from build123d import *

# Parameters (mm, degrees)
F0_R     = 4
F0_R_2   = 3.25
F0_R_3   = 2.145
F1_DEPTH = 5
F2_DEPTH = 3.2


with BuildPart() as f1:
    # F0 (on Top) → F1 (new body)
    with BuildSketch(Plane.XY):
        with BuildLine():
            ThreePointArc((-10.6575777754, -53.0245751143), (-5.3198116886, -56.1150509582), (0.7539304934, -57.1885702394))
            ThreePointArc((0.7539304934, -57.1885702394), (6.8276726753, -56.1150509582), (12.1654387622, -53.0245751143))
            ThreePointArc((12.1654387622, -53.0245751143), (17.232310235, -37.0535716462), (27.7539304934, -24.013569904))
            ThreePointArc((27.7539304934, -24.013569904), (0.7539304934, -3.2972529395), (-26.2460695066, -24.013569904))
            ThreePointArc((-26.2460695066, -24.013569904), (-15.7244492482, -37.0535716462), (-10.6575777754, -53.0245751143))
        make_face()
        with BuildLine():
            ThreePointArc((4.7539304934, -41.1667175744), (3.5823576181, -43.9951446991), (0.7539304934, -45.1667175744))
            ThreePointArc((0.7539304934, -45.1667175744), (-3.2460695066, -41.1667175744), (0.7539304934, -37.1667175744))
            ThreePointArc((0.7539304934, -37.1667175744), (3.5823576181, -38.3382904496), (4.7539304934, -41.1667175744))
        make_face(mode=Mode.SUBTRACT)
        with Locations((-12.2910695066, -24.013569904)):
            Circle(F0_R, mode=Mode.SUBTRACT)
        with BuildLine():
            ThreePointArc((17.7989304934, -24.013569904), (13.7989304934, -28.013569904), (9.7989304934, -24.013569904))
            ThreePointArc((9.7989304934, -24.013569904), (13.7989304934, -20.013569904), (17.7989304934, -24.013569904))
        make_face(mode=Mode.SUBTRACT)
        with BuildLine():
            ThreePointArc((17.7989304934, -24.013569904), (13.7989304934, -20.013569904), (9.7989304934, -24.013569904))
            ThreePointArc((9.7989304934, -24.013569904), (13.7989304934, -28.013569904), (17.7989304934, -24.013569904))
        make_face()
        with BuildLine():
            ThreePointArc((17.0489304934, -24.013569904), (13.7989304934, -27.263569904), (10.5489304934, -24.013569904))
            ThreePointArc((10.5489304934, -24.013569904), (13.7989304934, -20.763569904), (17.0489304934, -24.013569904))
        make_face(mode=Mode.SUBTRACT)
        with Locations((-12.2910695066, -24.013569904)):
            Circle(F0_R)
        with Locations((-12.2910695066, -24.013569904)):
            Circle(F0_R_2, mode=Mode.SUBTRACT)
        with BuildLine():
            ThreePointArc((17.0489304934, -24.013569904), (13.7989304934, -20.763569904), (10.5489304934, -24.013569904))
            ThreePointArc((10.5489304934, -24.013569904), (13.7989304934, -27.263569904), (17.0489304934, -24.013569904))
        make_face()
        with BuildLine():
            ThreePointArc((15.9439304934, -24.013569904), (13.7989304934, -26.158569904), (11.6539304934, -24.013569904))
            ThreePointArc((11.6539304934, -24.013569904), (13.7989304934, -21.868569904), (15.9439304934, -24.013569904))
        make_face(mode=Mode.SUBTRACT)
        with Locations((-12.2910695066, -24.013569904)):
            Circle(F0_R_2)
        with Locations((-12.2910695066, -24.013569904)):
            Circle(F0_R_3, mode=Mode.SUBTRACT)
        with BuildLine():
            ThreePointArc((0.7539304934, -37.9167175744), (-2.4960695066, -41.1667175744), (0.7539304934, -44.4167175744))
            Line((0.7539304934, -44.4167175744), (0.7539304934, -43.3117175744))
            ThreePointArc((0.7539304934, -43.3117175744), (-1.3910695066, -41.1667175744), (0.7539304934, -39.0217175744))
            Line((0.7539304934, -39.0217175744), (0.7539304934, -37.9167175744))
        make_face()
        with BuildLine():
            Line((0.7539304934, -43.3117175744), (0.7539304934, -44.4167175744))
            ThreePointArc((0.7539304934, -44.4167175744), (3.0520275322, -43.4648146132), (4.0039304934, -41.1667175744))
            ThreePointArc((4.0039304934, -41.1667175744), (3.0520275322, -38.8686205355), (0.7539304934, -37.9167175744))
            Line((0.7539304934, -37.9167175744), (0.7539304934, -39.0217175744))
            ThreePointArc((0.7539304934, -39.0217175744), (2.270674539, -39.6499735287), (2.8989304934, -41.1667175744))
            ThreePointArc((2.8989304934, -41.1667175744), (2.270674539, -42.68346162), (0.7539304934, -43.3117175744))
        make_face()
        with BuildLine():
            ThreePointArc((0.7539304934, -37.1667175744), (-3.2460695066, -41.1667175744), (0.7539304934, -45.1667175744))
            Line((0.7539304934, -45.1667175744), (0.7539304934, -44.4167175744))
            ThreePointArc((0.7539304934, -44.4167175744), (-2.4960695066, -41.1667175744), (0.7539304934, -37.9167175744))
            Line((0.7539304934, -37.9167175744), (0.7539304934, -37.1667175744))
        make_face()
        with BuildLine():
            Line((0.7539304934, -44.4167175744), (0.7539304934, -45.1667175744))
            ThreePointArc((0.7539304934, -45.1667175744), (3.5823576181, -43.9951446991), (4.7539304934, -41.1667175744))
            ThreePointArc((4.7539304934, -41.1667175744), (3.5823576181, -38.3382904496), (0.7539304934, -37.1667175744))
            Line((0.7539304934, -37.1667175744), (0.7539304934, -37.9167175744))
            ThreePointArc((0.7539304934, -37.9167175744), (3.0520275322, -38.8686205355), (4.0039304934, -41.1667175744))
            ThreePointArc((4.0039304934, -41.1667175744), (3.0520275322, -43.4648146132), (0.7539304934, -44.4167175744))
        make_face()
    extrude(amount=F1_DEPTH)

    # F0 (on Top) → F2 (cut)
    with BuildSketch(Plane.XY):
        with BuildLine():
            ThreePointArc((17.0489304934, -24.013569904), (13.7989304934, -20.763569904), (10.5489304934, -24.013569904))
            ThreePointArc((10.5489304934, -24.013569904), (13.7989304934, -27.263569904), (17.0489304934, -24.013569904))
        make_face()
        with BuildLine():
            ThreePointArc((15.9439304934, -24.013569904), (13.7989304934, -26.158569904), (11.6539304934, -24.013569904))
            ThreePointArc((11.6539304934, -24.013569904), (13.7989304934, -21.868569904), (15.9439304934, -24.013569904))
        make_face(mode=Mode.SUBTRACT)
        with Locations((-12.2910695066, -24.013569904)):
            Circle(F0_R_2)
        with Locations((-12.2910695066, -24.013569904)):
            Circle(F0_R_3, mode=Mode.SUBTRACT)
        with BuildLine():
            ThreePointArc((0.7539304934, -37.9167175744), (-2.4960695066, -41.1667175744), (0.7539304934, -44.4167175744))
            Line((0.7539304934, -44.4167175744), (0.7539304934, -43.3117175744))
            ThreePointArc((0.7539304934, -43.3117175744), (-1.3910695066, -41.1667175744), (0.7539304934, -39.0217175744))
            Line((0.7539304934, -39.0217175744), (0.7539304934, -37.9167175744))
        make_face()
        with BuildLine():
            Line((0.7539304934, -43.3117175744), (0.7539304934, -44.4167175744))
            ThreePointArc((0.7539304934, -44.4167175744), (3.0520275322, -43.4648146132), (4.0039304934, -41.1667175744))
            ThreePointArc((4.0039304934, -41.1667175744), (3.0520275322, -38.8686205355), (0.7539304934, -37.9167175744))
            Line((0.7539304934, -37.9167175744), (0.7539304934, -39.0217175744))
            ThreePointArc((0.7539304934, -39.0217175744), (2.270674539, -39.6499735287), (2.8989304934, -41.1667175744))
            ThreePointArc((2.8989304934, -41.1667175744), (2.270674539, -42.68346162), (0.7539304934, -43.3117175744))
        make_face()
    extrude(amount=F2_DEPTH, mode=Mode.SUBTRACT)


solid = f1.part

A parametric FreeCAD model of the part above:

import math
import FreeCAD as App
import Part
import Sketcher
from FreeCAD import Vector
Q = App.Units.Quantity

doc = App.newDocument("Part")
body = doc.addObject("PartDesign::Body", "Body")

# Sketch on XY plane
sketch1 = body.newObject("Sketcher::SketchObject", "Sketch")
sketch1.AttachmentSupport = (doc.getObject("XY_Plane"), [""])
sketch1.MapMode = "FlatFace"
sketch1.addGeometry([
    Part.ArcOfCircle(Part.Circle(Vector(0.8, -39.5, 0), Vector(0, 0, 1), 17.7), math.radians(-130), math.radians(-50)),  # 0
    Part.ArcOfCircle(Part.Circle(Vector(57.2, -58.5, 0), Vector(0, 0, 1), 45.3), math.radians(130), math.radians(173)),  # 1
    Part.ArcOfCircle(Part.Circle(Vector(0.8, -31.3, 0), Vector(0, 0, 1), 28), math.radians(15), math.radians(165)),  # 2
    Part.ArcOfCircle(Part.Circle(Vector(-55.7, -58.5, 0), Vector(0, 0, 1), 45.3), math.radians(7), math.radians(50)),  # 3
    Part.Circle(Vector(-12.3, -24, 0), Vector(0, 0, 1), 2.1),  # 4
    Part.Circle(Vector(13.8, -24, 0), Vector(0, 0, 1), 2.1),  # 5
    Part.ArcOfCircle(Part.Circle(Vector(0.8, -41.2, 0), Vector(0, 0, 1), 2.1), math.radians(-90), math.radians(0)),  # 6
    Part.ArcOfCircle(Part.Circle(Vector(0.8, -41.2, 0), Vector(0, 0, 1), 2.1), math.radians(90), math.radians(270)),  # 7
    Part.ArcOfCircle(Part.Circle(Vector(0.8, -41.2, 0), Vector(0, 0, 1), 2.1), math.radians(0), math.radians(90)),  # 8
], False)
sketch1.addConstraint([
    Sketcher.Constraint("Coincident", 0, 2, 1, 2),
    Sketcher.Constraint("Coincident", 1, 1, 2, 1),
    Sketcher.Constraint("Coincident", 2, 2, 3, 2),
    Sketcher.Constraint("Coincident", 3, 1, 0, 1),
    Sketcher.Constraint("Tangent", 6, 1, 7, 2),
    Sketcher.Constraint("Tangent", 7, 1, 8, 2),
    Sketcher.Constraint("Tangent", 8, 1, 6, 2),
    Sketcher.Constraint("Equal", 1, 3),
    Sketcher.Constraint("Equal", 4, 5),
    Sketcher.Constraint("Equal", 5, 6),
    Sketcher.Constraint("Horizontal", 1, 3, 3, 3),
    Sketcher.Constraint("Horizontal", 4, 3, 5, 3),
    Sketcher.Constraint("Horizontal", 5, 3, 1, 1),
    Sketcher.Constraint("Horizontal", 1, 1, 2, 2),
    Sketcher.Constraint("Horizontal", 0, 2, 3, 1),
    Sketcher.Constraint("Horizontal", 7, 3, 8, 1),
    Sketcher.Constraint("Vertical", 2, 3, 6, 3),
    Sketcher.Constraint("Vertical", 8, 3, 6, 1),
    Sketcher.Constraint("Vertical", 6, 1, 7, 1),
    Sketcher.Constraint("Diameter", 4, Q("4.29 mm")),
    Sketcher.Constraint("DistanceX", 2, 3, 1, 1, Q("27 mm")),
    Sketcher.Constraint("Radius", 1, Q("45.337661 mm")),
    Sketcher.Constraint("DistanceX", 4, 3, 5, 3, Q("26.09 mm")),
    Sketcher.Constraint("Radius", 0, Q("17.718726 mm")),
    Sketcher.Constraint("Radius", 2, Q("27.952985 mm")),
    Sketcher.Constraint("DistanceX", 4, 3, 2, 3, Q("13.045 mm")),
    Sketcher.Constraint("DistanceY", 3, 3, 6, 3, Q("17.346398 mm")),
    Sketcher.Constraint("DistanceX", -1, 1, 0, 3, Q("0.75393 mm")),
    Sketcher.Constraint("DistanceY", 4, 3, -1, 1, Q("24.01357 mm")),
    Sketcher.Constraint("DistanceX", -1, 1, 0, 2, Q("12.165439 mm")),
    Sketcher.Constraint("DistanceY", 1, 3, 0, 3, Q("19.043272 mm")),
])
pad1 = body.newObject("PartDesign::Pad", "Pad")
pad1.Profile = sketch1
pad1.Length = 5

# Sketch on XY plane
sketch2 = body.newObject("Sketcher::SketchObject", "Sketch001")
sketch2.AttachmentSupport = (doc.getObject("XY_Plane"), [""])
sketch2.MapMode = "FlatFace"
sketch2.addGeometry([
    Part.Circle(Vector(13.8, -24, 0), Vector(0, 0, 1), 3.2),  # 0
    Part.Circle(Vector(13.8, -24, 0), Vector(0, 0, 1), 2.1),  # 1
    Part.Circle(Vector(-12.3, -24, 0), Vector(0, 0, 1), 3.2),  # 2
    Part.Circle(Vector(-12.3, -24, 0), Vector(0, 0, 1), 2.1),  # 3
    Part.ArcOfCircle(Part.Circle(Vector(0.8, -41.2, 0), Vector(0, 0, 1), 3.2), math.radians(90), math.radians(270)),  # 4
    Part.ArcOfCircle(Part.Circle(Vector(0.8, -41.2, 0), Vector(0, 0, 1), 3.2), math.radians(-90), math.radians(0)),  # 5
    Part.ArcOfCircle(Part.Circle(Vector(0.8, -41.2, 0), Vector(0, 0, 1), 3.2), math.radians(0), math.radians(90)),  # 6
    Part.ArcOfCircle(Part.Circle(Vector(0.8, -41.2, 0), Vector(0, 0, 1), 2.1), math.radians(90), math.radians(270)),  # 7
    Part.ArcOfCircle(Part.Circle(Vector(0.8, -41.2, 0), Vector(0, 0, 1), 2.1), math.radians(0), math.radians(90)),  # 8
    Part.ArcOfCircle(Part.Circle(Vector(0.8, -41.2, 0), Vector(0, 0, 1), 2.1), math.radians(-90), math.radians(0)),  # 9
], False)
sketch2.addConstraint([
    Sketcher.Constraint("Tangent", 4, 2, 5, 1),
    Sketcher.Constraint("Tangent", 5, 2, 6, 1),
    Sketcher.Constraint("Tangent", 6, 2, 4, 1),
    Sketcher.Constraint("Tangent", 7, 1, 8, 2),
    Sketcher.Constraint("Tangent", 8, 1, 9, 2),
    Sketcher.Constraint("Tangent", 9, 1, 7, 2),
    Sketcher.Constraint("Coincident", 1, 3, 0, 3),
    Sketcher.Constraint("Coincident", 3, 3, 2, 3),
    Sketcher.Constraint("Coincident", 7, 3, 4, 3),
    Sketcher.Constraint("Equal", 0, 2),
    Sketcher.Constraint("Equal", 1, 3),
    Sketcher.Constraint("Equal", 2, 4),
    Sketcher.Constraint("Equal", 3, 7),
    Sketcher.Constraint("Horizontal", 1, 3, 2, 3),
    Sketcher.Constraint("Horizontal", 9, 3, 5, 2),
    Sketcher.Constraint("Horizontal", 5, 2, 8, 1),
    Sketcher.Constraint("Vertical", 9, 3, 4, 2),
    Sketcher.Constraint("Vertical", 4, 2, 6, 2),
    Sketcher.Constraint("Vertical", 6, 2, 7, 1),
    Sketcher.Constraint("Vertical", 7, 1, 9, 1),
    Sketcher.Constraint("Diameter", 0, Q("6.5 mm")),
    Sketcher.Constraint("Diameter", 1, Q("4.29 mm")),
    Sketcher.Constraint("DistanceX", 2, 3, 0, 3, Q("26.09 mm")),
    Sketcher.Constraint("DistanceX", 4, 3, 0, 3, Q("13.045 mm")),
    Sketcher.Constraint("DistanceX", -1, 1, 0, 3, Q("13.79893 mm")),
    Sketcher.Constraint("DistanceY", 0, 3, -1, 1, Q("24.01357 mm")),
    Sketcher.Constraint("DistanceY", 4, 3, -1, 1, Q("41.166718 mm")),
])
pocket1 = body.newObject("PartDesign::Pocket", "Pocket")
pocket1.Profile = sketch2
pocket1.Length = 3.2
pocket1.Reversed = True

doc.recompute()
